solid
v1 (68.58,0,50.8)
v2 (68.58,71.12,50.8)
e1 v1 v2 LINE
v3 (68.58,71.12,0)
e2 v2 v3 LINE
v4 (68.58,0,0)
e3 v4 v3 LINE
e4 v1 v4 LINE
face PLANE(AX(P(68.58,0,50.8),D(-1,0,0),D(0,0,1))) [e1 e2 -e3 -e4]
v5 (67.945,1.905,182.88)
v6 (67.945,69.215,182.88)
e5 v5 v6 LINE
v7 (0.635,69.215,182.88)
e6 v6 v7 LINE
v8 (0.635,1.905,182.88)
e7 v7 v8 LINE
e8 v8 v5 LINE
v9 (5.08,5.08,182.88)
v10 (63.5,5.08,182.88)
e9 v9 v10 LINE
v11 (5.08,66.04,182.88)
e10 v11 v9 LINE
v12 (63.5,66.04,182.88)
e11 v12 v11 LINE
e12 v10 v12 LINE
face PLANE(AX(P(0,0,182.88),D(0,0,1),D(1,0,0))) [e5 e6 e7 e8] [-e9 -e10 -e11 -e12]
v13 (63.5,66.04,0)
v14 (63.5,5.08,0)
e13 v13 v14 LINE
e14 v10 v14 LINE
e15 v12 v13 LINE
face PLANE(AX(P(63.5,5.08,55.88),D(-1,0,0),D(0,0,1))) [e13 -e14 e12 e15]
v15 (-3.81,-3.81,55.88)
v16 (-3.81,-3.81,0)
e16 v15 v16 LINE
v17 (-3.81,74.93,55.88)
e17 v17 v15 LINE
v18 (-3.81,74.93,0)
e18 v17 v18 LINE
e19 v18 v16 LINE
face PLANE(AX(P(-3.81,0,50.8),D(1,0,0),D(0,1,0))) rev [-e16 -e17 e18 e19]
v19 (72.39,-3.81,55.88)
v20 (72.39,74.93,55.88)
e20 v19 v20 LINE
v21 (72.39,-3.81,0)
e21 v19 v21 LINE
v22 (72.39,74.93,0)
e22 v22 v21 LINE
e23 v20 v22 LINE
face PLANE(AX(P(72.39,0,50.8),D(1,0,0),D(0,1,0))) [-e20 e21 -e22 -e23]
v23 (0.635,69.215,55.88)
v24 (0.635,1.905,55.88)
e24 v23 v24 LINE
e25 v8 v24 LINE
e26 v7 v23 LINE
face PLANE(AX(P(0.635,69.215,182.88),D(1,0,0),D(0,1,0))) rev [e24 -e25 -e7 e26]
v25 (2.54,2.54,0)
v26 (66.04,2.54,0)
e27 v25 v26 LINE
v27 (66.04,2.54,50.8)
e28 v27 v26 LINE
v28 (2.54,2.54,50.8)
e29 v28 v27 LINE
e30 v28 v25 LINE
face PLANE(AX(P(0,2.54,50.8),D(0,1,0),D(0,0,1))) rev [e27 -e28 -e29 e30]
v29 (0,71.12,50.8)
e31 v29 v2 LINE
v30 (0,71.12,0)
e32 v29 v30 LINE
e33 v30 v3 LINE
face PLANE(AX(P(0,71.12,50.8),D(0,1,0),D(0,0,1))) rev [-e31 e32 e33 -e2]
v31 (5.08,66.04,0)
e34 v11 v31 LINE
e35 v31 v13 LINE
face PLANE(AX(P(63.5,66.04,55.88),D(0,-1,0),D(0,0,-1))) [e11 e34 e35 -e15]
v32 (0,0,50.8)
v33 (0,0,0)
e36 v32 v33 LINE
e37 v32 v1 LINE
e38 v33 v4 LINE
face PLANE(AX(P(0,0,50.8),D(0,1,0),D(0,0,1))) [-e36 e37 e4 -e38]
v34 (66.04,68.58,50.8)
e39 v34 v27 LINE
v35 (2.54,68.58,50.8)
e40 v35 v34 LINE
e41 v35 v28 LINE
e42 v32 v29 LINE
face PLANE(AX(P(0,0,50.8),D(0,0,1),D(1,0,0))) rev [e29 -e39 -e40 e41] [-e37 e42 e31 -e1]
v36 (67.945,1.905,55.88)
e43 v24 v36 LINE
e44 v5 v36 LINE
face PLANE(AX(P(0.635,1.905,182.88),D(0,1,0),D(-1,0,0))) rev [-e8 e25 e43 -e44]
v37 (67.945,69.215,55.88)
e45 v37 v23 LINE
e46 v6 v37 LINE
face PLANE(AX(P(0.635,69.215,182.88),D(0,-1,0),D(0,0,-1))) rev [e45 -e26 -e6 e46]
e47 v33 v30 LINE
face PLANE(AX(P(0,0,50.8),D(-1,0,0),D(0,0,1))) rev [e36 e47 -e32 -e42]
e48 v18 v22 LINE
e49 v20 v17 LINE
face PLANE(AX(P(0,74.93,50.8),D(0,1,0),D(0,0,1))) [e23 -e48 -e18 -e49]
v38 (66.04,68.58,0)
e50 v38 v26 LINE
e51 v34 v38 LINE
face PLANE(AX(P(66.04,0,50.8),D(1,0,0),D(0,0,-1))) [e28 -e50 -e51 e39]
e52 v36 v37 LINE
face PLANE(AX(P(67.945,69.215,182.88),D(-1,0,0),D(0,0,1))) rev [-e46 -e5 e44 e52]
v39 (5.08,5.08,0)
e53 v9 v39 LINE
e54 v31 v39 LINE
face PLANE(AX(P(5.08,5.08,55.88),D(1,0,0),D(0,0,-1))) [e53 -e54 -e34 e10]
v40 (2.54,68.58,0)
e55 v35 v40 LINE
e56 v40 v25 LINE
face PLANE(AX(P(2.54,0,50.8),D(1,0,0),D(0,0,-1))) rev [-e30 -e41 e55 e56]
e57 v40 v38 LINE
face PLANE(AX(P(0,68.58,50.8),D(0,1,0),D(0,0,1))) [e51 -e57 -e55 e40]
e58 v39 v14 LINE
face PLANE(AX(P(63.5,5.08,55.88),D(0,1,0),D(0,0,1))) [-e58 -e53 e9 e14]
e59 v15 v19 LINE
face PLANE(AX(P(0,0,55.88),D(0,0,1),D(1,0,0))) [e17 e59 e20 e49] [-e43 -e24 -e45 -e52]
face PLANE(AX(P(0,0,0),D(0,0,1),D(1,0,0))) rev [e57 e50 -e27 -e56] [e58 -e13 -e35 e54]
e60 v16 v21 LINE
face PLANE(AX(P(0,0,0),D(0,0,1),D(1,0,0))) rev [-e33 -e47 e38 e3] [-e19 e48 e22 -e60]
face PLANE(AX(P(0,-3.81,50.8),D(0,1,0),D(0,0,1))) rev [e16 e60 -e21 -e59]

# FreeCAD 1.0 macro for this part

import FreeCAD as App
import Part
import Sketcher

V = App.Vector
Q = App.Units.Quantity

doc = App.newDocument("Part")
body = doc.addObject("PartDesign::Body", "Body")

sketch1 = body.newObject("Sketcher::SketchObject", "Sketch")
sketch1.AttachmentSupport = (doc.getObject("XY_Plane"), [""])
sketch1.MapMode = "FlatFace"
sketch1.addGeometry([
    Part.LineSegment(V(-4, 75, 0), V(-4, -4, 0)),
    Part.LineSegment(V(-4, -4, 0), V(72, -4, 0)),
    Part.LineSegment(V(72, -4, 0), V(72, 75, 0)),
    Part.LineSegment(V(72, 75, 0), V(-4, 75, 0)),
    Part.LineSegment(V(69, 0, 0), V(0, 0, 0)),
    Part.LineSegment(V(0, 0, 0), V(0, 71, 0)),
    Part.LineSegment(V(0, 71, 0), V(69, 71, 0)),
    Part.LineSegment(V(69, 71, 0), V(69, 0, 0)),
], False)
sketch1.addConstraint([
    Sketcher.Constraint("Coincident", 0, 2, 1, 1),
    Sketcher.Constraint("Coincident", 1, 2, 2, 1),
    Sketcher.Constraint("Coincident", 2, 2, 3, 1),
    Sketcher.Constraint("Coincident", 3, 2, 0, 1),
    Sketcher.Constraint("Coincident", 4, 2, 5, 1),
    Sketcher.Constraint("Coincident", 5, 2, 6, 1),
    Sketcher.Constraint("Coincident", 6, 2, 7, 1),
    Sketcher.Constraint("Coincident", 7, 2, 4, 1),
    Sketcher.Constraint("Vertical", 0),
    Sketcher.Constraint("Horizontal", 1),
    Sketcher.Constraint("Vertical", 2),
    Sketcher.Constraint("Horizontal", 3),
    Sketcher.Constraint("Horizontal", 4),
    Sketcher.Constraint("Vertical", 5),
    Sketcher.Constraint("Horizontal", 6),
    Sketcher.Constraint("Vertical", 7),
    Sketcher.Constraint("Coincident", 4, 2, -1, 1),
    Sketcher.Constraint("DistanceX", 1, 1, 1, 2, Q("3 in")),
    Sketcher.Constraint("DistanceX", 4, 2, 4, 1, Q("2.7 in")),
    Sketcher.Constraint("DistanceY", 0, 2, 0, 1, Q("3.1 in")),
    Sketcher.Constraint("DistanceY", 5, 1, 5, 2, Q("2.8 in")),
    Sketcher.Constraint("DistanceX", 0, 2, -1, 1, Q("0.15 in")),
    Sketcher.Constraint("DistanceY", 0, 2, -1, 1, Q("0.15 in")),
])
pad1 = body.newObject("PartDesign::Pad", "Pad")
pad1.Profile = sketch1
pad1.Length = Q("2 in")
body2 = doc.addObject("PartDesign::Body", "Body001")

sketch2 = body2.newObject("Sketcher::SketchObject", "Sketch001")
sketch2.AttachmentSupport = (doc.getObject("XY_Plane001"), [""])
sketch2.MapMode = "FlatFace"
sketch2.addGeometry([
    Part.LineSegment(V(3, 69, 0), V(3, 3, 0)),
    Part.LineSegment(V(3, 3, 0), V(66, 3, 0)),
    Part.LineSegment(V(66, 3, 0), V(66, 69, 0)),
    Part.LineSegment(V(66, 69, 0), V(3, 69, 0)),
    Part.LineSegment(V(64, 5, 0), V(5, 5, 0)),
    Part.LineSegment(V(5, 5, 0), V(5, 66, 0)),
    Part.LineSegment(V(5, 66, 0), V(64, 66, 0)),
    Part.LineSegment(V(64, 66, 0), V(64, 5, 0)),
], False)
sketch2.addConstraint([
    Sketcher.Constraint("Coincident", 0, 2, 1, 1),
    Sketcher.Constraint("Coincident", 1, 2, 2, 1),
    Sketcher.Constraint("Coincident", 2, 2, 3, 1),
    Sketcher.Constraint("Coincident", 3, 2, 0, 1),
    Sketcher.Constraint("Coincident", 4, 2, 5, 1),
    Sketcher.Constraint("Coincident", 5, 2, 6, 1),
    Sketcher.Constraint("Coincident", 6, 2, 7, 1),
    Sketcher.Constraint("Coincident", 7, 2, 4, 1),
    Sketcher.Constraint("Vertical", 0),
    Sketcher.Constraint("Horizontal", 1),
    Sketcher.Constraint("Vertical", 2),
    Sketcher.Constraint("Horizontal", 3),
    Sketcher.Constraint("Horizontal", 4),
    Sketcher.Constraint("Vertical", 5),
    Sketcher.Constraint("Horizontal", 6),
    Sketcher.Constraint("Vertical", 7),
    Sketcher.Constraint("DistanceX", 1, 1, 1, 2, Q("2.5 in")),
    Sketcher.Constraint("DistanceX", 4, 2, 4, 1, Q("2.3 in")),
    Sketcher.Constraint("DistanceY", 0, 2, 0, 1, Q("2.6 in")),
    Sketcher.Constraint("DistanceY", 5, 1, 5, 2, Q("2.4 in")),
    Sketcher.Constraint("DistanceX", -1, 1, 0, 2, Q("0.1 in")),
    Sketcher.Constraint("DistanceY", -1, 1, 0, 2, Q("0.1 in")),
    Sketcher.Constraint("DistanceX", -1, 1, 4, 2, Q("0.2 in")),
    Sketcher.Constraint("DistanceY", -1, 1, 4, 2, Q("0.2 in")),
])
pad2 = body2.newObject("PartDesign::Pad", "Pad001")
pad2.Profile = sketch2
pad2.Length = Q("2 in")
body.AllowCompound = True
doc.recompute()

boolean = body.newObject("PartDesign::Boolean", "Boolean")
boolean.Type = "Fuse"
boolean.addObjects([body2])

sketch3 = body.newObject("Sketcher::SketchObject", "Sketch002")
sketch3.AttachmentSupport = (doc.getObject("XY_Plane"), [""])
sketch3.MapMode = "FlatFace"
sketch3.AttachmentOffset = App.Placement(V(0, 0, 2 * 25.4), App.Rotation())
sketch3.addGeometry([
    Part.LineSegment(V(-4, 75, 0), V(-4, -4, 0)),
    Part.LineSegment(V(-4, -4, 0), V(72, -4, 0)),
    Part.LineSegment(V(72, -4, 0), V(72, 75, 0)),
    Part.LineSegment(V(72, 75, 0), V(-4, 75, 0)),
    Part.LineSegment(V(64, 5, 0), V(5, 5, 0)),
    Part.LineSegment(V(5, 5, 0), V(5, 66, 0)),
    Part.LineSegment(V(5, 66, 0), V(64, 66, 0)),
    Part.LineSegment(V(64, 66, 0), V(64, 5, 0)),
], False)
sketch3.addConstraint([
    Sketcher.Constraint("Coincident", 0, 2, 1, 1),
    Sketcher.Constraint("Coincident", 1, 2, 2, 1),
    Sketcher.Constraint("Coincident", 2, 2, 3, 1),
    Sketcher.Constraint("Coincident", 3, 2, 0, 1),
    Sketcher.Constraint("Coincident", 4, 2, 5, 1),
    Sketcher.Constraint("Coincident", 5, 2, 6, 1),
    Sketcher.Constraint("Coincident", 6, 2, 7, 1),
    Sketcher.Constraint("Coincident", 7, 2, 4, 1),
    Sketcher.Constraint("Vertical", 0),
    Sketcher.Constraint("Horizontal", 1),
    Sketcher.Constraint("Vertical", 2),
    Sketcher.Constraint("Horizontal", 3),
    Sketcher.Constraint("Horizontal", 4),
    Sketcher.Constraint("Vertical", 5),
    Sketcher.Constraint("Horizontal", 6),
    Sketcher.Constraint("Vertical", 7),
    Sketcher.Constraint("DistanceX", 1, 1, 1, 2, Q("3 in")),
    Sketcher.Constraint("DistanceX", 4, 2, 4, 1, Q("2.3 in")),
    Sketcher.Constraint("DistanceY", 0, 2, 0, 1, Q("3.1 in")),
    Sketcher.Constraint("DistanceY", 5, 1, 5, 2, Q("2.4 in")),
    Sketcher.Constraint("DistanceX", -1, 1, 4, 2, Q("0.2 in")),
    Sketcher.Constraint("DistanceY", -1, 1, 4, 2, Q("0.2 in")),
    Sketcher.Constraint("DistanceX", 0, 2, -1, 1, Q("0.15 in")),
    Sketcher.Constraint("DistanceY", 0, 2, -1, 1, Q("0.15 in")),
])
pad3 = body.newObject("PartDesign::Pad", "Pad002")
pad3.Profile = sketch3
pad3.Length = Q("0.2 in")

sketch4 = body.newObject("Sketcher::SketchObject", "Sketch003")
sketch4.AttachmentSupport = (doc.getObject("XY_Plane"), [""])
sketch4.MapMode = "FlatFace"
sketch4.AttachmentOffset = App.Placement(V(0, 0, 2.2 * 25.4), App.Rotation())
sketch4.addGeometry([
    Part.LineSegment(V(1, 69, 0), V(1, 2, 0)),
    Part.LineSegment(V(1, 2, 0), V(68, 2, 0)),
    Part.LineSegment(V(68, 2, 0), V(68, 69, 0)),
    Part.LineSegment(V(68, 69, 0), V(1, 69, 0)),
    Part.LineSegment(V(64, 5, 0), V(5, 5, 0)),
    Part.LineSegment(V(5, 5, 0), V(5, 66, 0)),
    Part.LineSegment(V(5, 66, 0), V(64, 66, 0)),
    Part.LineSegment(V(64, 66, 0), V(64, 5, 0)),
], False)
sketch4.addConstraint([
    Sketcher.Constraint("Coincident", 0, 2, 1, 1),
    Sketcher.Constraint("Coincident", 1, 2, 2, 1),
    Sketcher.Constraint("Coincident", 2, 2, 3, 1),
    Sketcher.Constraint("Coincident", 3, 2, 0, 1),
    Sketcher.Constraint("Coincident", 4, 2, 5, 1),
    Sketcher.Constraint("Coincident", 5, 2, 6, 1),
    Sketcher.Constraint("Coincident", 6, 2, 7, 1),
    Sketcher.Constraint("Coincident", 7, 2, 4, 1),
    Sketcher.Constraint("Vertical", 0),
    Sketcher.Constraint("Horizontal", 1),
    Sketcher.Constraint("Vertical", 2),
    Sketcher.Constraint("Horizontal", 3),
    Sketcher.Constraint("Horizontal", 4),
    Sketcher.Constraint("Vertical", 5),
    Sketcher.Constraint("Horizontal", 6),
    Sketcher.Constraint("Vertical", 7),
    Sketcher.Constraint("Equal", 3, 0),
    Sketcher.Constraint("DistanceX", 4, 2, 4, 1, Q("2.3 in")),
    Sketcher.Constraint("DistanceY", 5, 1, 5, 2, Q("2.4 in")),
    Sketcher.Constraint("DistanceX", 1, 1, 1, 2, Q("2.65 in")),
    Sketcher.Constraint("DistanceX", -1, 1, 4, 2, Q("0.2 in")),
    Sketcher.Constraint("DistanceY", -1, 1, 4, 2, Q("0.2 in")),
    Sketcher.Constraint("DistanceX", -1, 1, 0, 2, Q("0.025 in")),
    Sketcher.Constraint("DistanceY", -1, 1, 0, 2, Q("0.075 in")),
])
pad4 = body.newObject("PartDesign::Pad", "Pad003")
pad4.Profile = sketch4
pad4.Length = Q("5 in")

doc.recompute()
